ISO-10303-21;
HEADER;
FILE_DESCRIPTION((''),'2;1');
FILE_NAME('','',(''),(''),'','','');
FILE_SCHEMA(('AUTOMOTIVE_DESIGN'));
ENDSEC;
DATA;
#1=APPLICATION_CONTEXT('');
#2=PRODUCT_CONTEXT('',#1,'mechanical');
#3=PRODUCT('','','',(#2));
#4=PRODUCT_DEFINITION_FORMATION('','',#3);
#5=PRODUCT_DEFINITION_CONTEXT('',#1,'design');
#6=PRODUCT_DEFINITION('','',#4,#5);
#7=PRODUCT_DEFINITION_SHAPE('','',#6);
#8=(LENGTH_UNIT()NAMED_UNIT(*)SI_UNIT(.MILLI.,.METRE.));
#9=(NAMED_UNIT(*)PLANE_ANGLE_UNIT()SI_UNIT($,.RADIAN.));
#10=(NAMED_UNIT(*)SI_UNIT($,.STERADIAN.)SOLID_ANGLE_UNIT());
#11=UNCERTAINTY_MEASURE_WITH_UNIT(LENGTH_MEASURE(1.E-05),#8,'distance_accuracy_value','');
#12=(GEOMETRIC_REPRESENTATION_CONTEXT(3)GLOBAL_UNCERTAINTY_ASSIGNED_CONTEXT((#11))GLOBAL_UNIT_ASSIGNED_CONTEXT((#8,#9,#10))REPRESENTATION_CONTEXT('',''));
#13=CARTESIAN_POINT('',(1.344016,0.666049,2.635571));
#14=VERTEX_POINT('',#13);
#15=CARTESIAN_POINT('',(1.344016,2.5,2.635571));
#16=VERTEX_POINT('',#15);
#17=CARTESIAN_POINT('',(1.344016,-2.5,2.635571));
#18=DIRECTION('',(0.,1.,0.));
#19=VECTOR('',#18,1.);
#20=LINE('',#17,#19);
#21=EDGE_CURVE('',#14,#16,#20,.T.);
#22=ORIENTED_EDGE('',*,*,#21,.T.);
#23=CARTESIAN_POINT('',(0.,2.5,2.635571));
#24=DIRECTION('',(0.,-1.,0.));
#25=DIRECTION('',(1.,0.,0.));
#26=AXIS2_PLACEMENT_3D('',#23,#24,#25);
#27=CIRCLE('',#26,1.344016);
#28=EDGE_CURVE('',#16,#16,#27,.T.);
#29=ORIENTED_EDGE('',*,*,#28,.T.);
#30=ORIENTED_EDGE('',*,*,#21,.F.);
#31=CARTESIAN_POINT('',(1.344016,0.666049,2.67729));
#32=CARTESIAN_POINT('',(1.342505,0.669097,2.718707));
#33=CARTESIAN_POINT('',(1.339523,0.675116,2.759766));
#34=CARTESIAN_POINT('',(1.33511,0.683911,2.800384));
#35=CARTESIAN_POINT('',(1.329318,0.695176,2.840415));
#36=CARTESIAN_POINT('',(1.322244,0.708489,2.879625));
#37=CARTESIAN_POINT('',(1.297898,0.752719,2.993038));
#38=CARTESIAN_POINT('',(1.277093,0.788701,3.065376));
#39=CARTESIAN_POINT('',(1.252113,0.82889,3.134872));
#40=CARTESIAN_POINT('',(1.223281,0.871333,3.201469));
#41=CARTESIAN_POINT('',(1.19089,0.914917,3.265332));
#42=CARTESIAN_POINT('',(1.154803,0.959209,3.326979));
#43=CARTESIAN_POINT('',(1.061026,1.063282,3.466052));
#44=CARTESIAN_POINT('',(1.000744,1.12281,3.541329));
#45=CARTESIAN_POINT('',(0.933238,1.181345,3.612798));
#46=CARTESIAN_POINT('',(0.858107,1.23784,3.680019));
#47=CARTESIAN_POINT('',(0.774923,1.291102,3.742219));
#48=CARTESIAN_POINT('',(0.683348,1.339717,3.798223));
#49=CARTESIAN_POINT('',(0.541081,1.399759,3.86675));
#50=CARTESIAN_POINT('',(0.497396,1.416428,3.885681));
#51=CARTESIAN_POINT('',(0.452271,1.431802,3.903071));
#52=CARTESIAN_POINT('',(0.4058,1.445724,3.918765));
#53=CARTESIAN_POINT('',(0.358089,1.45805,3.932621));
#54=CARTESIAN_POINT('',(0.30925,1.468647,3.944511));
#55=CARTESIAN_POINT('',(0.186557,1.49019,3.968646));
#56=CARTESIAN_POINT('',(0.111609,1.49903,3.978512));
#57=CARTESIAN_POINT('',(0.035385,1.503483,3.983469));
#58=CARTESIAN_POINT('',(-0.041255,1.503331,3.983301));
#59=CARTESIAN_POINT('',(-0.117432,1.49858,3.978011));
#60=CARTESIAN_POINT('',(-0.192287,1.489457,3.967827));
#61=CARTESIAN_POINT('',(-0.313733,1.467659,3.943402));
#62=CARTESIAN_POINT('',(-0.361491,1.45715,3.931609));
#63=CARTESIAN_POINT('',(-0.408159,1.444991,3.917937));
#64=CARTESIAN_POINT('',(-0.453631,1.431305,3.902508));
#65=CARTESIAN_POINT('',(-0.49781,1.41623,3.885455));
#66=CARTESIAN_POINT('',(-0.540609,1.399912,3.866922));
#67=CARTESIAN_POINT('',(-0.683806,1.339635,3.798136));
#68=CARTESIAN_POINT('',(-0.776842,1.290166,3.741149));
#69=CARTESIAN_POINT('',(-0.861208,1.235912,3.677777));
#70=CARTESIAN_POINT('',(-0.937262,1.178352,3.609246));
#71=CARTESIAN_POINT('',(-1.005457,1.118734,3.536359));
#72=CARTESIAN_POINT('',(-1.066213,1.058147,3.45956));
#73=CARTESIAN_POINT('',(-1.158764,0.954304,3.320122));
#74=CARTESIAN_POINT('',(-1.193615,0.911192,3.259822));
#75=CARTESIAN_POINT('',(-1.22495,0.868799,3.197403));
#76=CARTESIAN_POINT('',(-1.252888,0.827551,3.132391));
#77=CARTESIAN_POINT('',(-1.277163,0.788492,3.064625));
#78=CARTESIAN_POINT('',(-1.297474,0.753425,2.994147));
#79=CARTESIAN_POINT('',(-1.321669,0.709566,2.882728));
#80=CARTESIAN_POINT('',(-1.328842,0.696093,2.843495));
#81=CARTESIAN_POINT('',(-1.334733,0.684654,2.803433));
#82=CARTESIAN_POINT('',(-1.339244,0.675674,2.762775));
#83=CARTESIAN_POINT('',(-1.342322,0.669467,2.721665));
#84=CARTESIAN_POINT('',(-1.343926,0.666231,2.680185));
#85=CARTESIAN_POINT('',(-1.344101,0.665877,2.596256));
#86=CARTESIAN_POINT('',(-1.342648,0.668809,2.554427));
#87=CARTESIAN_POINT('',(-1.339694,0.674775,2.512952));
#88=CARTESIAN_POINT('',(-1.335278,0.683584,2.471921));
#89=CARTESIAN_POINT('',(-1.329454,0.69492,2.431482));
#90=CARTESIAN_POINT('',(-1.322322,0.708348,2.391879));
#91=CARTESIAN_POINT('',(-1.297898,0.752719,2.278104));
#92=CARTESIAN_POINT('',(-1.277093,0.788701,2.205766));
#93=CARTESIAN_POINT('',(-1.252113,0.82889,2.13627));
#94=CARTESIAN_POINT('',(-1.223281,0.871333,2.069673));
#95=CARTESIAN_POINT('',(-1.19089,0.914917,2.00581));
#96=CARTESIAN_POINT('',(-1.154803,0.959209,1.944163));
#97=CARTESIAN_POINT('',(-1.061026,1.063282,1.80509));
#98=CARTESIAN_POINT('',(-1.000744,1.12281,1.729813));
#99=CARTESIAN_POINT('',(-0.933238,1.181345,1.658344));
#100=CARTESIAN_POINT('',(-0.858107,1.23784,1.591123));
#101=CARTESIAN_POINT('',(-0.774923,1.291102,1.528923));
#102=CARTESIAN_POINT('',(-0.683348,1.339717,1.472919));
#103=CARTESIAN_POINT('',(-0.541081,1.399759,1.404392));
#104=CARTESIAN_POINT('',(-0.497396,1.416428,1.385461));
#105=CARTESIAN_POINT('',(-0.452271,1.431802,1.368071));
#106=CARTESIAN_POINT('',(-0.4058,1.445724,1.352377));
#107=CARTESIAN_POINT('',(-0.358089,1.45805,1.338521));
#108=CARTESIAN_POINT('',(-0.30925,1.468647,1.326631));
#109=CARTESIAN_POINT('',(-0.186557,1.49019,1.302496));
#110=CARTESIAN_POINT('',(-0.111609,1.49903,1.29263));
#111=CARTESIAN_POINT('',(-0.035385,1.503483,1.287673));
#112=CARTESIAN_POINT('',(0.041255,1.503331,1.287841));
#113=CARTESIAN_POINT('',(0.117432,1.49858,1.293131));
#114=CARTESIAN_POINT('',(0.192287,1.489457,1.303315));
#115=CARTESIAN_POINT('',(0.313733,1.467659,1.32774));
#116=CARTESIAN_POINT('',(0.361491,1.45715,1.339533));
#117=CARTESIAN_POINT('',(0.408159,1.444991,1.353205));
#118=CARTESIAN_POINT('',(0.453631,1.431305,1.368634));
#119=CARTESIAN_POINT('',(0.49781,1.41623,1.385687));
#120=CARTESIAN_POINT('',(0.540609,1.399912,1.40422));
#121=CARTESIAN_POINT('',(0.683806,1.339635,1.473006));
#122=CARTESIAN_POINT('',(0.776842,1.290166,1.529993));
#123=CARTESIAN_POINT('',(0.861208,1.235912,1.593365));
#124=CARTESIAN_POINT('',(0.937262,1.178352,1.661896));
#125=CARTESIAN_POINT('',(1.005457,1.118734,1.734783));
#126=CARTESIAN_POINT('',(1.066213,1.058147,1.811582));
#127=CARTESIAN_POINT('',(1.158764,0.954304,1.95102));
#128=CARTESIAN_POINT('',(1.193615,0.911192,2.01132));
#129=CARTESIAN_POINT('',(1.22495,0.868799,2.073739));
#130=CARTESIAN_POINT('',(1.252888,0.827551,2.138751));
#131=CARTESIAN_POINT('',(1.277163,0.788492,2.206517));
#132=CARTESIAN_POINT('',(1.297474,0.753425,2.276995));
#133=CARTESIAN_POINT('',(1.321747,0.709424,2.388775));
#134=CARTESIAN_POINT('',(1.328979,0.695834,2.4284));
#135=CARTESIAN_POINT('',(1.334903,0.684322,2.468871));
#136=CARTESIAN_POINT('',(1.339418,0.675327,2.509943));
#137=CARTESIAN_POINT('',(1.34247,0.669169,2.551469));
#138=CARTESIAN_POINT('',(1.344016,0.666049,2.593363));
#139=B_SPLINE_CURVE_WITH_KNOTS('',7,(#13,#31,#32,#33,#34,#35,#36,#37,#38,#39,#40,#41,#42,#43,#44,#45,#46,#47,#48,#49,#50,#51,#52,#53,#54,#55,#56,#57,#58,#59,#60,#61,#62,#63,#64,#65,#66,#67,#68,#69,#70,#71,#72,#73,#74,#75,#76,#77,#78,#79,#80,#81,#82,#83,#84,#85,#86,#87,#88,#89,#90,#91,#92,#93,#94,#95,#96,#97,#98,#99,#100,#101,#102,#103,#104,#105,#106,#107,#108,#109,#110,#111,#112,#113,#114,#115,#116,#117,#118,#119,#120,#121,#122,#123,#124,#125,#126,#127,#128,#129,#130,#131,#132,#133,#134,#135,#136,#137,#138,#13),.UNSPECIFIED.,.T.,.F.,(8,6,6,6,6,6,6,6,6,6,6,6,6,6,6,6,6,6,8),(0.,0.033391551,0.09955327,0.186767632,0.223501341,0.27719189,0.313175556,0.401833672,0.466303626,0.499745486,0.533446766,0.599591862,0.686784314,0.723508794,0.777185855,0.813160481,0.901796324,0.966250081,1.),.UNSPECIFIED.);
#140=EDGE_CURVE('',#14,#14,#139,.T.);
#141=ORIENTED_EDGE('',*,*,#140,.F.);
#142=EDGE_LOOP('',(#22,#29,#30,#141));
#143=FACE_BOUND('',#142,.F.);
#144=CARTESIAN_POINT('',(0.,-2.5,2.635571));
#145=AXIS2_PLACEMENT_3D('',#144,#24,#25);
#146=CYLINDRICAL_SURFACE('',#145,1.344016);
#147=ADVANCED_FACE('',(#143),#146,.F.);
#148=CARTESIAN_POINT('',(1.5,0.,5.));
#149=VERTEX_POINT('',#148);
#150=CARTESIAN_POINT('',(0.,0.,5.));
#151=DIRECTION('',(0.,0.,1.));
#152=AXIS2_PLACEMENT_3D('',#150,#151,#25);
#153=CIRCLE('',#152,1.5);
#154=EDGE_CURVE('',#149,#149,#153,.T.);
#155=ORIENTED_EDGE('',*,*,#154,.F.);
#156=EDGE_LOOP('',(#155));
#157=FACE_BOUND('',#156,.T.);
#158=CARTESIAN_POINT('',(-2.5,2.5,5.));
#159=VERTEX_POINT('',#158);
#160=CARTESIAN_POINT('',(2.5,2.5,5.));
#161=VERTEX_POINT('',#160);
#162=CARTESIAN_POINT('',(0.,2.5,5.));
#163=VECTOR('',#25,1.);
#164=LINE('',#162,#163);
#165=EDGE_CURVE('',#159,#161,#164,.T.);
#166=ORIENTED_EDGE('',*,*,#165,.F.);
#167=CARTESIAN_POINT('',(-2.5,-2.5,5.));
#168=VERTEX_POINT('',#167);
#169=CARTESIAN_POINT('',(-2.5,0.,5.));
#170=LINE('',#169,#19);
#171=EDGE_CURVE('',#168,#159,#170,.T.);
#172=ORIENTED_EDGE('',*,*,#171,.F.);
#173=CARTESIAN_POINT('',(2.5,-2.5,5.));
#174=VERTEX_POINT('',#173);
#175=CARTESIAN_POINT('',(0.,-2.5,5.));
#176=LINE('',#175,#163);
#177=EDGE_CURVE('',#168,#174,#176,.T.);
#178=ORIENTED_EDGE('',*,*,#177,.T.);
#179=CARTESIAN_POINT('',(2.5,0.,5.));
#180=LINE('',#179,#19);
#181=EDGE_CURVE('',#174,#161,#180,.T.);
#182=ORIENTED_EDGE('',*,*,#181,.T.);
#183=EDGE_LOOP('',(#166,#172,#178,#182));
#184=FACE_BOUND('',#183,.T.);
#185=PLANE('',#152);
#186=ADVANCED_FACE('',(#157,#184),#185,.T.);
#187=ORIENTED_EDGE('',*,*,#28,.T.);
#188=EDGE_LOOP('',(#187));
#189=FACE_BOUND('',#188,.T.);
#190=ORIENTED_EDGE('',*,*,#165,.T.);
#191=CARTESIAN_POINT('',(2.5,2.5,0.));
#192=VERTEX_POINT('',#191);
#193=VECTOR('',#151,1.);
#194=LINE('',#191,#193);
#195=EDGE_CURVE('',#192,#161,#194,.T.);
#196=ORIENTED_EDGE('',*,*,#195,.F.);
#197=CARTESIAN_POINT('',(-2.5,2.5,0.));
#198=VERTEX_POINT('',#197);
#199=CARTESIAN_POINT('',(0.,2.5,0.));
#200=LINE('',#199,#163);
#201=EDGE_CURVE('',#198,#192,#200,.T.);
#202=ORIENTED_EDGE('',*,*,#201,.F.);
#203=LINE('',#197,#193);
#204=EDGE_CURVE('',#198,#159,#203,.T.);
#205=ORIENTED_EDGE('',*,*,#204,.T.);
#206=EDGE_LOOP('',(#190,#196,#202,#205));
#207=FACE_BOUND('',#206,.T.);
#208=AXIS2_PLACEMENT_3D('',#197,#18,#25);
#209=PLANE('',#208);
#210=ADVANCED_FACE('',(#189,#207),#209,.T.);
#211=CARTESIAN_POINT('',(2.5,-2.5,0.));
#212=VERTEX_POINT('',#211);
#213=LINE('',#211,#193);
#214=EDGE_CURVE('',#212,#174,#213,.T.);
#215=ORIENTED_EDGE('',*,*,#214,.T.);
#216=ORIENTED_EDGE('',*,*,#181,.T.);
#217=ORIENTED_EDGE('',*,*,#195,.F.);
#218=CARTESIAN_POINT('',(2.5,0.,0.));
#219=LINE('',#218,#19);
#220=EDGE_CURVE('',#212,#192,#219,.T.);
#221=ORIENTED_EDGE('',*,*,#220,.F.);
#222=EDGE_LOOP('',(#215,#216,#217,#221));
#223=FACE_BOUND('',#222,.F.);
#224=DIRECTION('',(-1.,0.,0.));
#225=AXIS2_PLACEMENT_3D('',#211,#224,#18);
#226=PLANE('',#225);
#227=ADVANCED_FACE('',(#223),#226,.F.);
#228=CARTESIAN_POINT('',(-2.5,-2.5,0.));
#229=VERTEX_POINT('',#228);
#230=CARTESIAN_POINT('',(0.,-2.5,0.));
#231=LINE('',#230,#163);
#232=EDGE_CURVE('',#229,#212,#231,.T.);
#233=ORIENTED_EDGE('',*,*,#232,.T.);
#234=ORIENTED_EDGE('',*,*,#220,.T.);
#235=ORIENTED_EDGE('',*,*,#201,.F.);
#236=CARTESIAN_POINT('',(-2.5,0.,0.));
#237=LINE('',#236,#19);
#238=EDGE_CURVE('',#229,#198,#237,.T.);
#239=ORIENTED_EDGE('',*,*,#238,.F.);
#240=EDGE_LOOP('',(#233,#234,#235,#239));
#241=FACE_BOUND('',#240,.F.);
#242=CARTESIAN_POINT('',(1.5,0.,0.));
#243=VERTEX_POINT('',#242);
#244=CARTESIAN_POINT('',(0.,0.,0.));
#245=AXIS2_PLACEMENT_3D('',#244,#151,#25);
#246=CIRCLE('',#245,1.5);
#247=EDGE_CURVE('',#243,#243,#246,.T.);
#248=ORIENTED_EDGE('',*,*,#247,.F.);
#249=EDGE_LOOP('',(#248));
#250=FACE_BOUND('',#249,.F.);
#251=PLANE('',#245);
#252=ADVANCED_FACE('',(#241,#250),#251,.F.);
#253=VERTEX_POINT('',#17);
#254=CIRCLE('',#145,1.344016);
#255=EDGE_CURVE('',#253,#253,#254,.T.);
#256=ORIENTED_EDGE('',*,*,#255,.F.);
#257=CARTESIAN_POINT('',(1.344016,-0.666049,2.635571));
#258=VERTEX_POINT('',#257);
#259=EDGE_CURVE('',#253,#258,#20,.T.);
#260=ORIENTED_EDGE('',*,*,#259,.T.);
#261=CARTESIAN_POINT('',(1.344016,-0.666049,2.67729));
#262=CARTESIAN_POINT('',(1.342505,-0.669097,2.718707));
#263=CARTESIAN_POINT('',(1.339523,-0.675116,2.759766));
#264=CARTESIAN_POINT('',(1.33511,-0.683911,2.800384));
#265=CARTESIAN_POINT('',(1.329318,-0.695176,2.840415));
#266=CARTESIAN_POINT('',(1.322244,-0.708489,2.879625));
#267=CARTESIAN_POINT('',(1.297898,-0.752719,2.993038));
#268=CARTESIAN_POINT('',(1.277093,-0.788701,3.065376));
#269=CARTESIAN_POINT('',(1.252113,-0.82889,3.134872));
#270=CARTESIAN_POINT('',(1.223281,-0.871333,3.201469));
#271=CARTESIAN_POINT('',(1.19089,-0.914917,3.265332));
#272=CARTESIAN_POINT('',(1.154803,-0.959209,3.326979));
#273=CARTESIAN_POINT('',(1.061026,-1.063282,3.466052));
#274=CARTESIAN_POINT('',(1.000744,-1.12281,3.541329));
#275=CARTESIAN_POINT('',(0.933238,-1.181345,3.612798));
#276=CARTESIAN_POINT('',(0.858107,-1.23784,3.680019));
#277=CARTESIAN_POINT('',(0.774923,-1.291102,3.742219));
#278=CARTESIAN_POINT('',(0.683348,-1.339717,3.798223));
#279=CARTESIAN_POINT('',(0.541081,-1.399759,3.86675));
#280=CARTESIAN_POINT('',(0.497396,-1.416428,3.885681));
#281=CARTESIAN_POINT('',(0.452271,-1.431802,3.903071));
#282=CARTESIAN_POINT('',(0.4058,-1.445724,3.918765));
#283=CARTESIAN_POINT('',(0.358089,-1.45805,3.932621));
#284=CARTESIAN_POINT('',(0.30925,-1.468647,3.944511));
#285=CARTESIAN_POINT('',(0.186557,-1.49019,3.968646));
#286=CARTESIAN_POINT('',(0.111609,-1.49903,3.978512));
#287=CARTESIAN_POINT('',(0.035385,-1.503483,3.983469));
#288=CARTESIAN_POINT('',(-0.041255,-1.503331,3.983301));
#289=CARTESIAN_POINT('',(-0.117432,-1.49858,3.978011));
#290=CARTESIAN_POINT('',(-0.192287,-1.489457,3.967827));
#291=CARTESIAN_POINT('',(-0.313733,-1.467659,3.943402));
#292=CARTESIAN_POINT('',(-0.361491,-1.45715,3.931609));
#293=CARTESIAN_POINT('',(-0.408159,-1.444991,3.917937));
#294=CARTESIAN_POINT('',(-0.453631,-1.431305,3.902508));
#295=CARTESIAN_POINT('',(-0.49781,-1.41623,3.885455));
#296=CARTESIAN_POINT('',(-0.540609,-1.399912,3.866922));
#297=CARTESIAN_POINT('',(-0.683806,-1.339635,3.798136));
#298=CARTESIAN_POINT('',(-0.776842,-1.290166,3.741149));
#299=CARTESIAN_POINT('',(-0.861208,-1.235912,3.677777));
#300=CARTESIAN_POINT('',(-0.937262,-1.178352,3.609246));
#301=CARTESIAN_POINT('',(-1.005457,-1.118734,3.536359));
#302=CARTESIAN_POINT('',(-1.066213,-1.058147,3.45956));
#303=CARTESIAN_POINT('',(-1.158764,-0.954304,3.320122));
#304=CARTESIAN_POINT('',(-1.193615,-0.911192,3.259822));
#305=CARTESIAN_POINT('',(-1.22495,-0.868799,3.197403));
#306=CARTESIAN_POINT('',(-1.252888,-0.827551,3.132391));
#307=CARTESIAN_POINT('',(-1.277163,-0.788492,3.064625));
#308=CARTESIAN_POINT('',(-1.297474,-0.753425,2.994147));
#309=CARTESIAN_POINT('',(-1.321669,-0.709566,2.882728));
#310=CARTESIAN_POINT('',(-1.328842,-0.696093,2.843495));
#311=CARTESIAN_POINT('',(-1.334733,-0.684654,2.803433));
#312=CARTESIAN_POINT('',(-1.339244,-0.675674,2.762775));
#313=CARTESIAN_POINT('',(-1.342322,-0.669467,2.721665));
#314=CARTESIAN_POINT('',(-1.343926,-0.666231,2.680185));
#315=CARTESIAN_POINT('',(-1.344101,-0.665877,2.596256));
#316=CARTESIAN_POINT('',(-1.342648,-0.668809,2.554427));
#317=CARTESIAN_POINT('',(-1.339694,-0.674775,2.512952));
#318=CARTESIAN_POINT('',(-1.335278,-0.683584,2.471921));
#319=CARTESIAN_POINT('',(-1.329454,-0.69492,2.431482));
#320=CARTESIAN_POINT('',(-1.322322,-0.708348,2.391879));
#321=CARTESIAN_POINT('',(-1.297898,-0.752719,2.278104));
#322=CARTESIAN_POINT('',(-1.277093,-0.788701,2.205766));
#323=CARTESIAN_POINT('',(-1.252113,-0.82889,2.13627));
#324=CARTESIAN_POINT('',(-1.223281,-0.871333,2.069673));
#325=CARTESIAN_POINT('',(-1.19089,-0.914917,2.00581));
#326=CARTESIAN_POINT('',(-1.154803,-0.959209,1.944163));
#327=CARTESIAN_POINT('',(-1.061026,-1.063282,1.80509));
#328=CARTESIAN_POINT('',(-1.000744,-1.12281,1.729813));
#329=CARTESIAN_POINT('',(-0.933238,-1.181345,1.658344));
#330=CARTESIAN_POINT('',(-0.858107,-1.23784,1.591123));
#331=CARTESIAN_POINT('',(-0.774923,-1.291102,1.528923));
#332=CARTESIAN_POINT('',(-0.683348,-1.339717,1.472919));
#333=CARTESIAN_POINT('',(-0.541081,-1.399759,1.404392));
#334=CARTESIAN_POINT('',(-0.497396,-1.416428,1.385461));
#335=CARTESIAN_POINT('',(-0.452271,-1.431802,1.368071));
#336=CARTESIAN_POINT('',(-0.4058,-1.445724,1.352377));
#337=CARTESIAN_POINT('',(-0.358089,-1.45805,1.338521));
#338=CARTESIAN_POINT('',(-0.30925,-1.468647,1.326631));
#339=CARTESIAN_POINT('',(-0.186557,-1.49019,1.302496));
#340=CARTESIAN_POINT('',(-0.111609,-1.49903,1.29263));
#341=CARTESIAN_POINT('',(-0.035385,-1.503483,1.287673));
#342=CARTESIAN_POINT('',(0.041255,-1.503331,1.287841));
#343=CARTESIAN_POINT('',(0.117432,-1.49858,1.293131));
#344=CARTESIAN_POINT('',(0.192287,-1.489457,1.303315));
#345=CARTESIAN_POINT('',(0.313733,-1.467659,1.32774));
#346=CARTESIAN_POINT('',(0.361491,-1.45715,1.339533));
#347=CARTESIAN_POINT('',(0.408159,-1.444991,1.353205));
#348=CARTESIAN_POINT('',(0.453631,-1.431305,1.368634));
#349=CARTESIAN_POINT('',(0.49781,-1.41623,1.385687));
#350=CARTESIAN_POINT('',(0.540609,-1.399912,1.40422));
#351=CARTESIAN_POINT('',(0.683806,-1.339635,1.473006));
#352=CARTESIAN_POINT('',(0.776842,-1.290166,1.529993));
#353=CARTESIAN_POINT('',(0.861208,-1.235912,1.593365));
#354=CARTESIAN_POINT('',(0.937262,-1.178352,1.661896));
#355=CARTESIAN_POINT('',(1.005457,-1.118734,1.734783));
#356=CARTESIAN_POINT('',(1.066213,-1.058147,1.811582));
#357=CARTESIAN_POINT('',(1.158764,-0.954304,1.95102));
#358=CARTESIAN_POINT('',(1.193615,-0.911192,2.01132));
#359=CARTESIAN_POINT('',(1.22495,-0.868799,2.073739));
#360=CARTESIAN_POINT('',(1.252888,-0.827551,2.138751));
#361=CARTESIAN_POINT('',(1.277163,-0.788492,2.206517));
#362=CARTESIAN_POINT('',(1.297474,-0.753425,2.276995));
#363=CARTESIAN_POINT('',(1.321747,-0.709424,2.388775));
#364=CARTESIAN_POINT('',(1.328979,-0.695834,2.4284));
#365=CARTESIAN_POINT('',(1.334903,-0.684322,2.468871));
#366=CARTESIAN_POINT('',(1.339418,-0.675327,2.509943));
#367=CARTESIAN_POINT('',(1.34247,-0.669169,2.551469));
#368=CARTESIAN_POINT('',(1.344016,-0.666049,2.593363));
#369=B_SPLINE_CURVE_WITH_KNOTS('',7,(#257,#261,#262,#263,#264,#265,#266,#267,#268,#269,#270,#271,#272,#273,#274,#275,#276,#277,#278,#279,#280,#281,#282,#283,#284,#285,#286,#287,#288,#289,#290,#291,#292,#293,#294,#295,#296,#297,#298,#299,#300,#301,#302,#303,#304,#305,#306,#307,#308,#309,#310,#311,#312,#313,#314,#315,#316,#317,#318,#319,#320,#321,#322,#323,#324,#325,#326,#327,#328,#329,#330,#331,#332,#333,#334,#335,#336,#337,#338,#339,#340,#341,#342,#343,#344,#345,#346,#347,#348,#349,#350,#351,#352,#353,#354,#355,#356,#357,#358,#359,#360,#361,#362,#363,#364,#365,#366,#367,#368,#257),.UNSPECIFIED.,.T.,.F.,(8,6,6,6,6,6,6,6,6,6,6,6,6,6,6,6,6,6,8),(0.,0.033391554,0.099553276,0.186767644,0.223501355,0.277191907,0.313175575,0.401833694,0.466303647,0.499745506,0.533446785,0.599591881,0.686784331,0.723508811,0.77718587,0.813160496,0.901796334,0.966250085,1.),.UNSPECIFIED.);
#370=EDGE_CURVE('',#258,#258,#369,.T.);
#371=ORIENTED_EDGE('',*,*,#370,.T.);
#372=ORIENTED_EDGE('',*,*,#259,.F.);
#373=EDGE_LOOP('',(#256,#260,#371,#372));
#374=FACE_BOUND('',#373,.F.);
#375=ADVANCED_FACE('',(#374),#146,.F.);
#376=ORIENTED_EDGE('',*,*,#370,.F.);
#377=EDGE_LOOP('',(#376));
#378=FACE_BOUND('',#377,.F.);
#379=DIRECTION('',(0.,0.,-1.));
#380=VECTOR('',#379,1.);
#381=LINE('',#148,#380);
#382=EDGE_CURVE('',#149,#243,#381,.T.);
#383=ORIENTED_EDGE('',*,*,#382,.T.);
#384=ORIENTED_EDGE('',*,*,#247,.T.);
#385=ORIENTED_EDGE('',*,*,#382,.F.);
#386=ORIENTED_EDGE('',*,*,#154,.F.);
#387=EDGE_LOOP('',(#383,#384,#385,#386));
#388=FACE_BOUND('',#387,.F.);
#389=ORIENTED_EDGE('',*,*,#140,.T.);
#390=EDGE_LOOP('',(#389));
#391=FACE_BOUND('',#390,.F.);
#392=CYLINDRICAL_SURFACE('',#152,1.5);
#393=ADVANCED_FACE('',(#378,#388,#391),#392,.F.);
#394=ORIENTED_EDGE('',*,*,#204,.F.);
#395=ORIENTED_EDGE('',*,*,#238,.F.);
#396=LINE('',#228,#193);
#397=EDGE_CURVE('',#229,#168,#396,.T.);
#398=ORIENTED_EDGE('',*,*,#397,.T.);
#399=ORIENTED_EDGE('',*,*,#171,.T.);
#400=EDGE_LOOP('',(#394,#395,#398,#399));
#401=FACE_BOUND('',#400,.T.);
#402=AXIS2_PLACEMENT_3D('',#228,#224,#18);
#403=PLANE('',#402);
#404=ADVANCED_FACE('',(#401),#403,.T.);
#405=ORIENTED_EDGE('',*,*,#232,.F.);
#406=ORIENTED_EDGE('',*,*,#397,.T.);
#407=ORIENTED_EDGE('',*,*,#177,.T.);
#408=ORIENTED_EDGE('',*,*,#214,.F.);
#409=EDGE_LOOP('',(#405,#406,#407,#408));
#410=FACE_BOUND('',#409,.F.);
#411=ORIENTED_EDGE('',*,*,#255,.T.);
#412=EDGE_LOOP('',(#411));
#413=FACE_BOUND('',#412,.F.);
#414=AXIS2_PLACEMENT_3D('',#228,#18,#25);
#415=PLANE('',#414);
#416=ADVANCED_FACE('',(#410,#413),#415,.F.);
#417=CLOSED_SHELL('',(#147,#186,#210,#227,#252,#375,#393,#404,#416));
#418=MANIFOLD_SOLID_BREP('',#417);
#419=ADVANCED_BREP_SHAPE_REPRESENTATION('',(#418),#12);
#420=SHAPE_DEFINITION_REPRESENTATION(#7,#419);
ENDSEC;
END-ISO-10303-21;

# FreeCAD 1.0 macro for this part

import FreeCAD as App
import Part
import Sketcher

V = App.Vector
Q = App.Units.Quantity


def add_polygon(sketch, points):
    """Adds a closed chain of lines whose ends are joined by coincident constraints."""
    first, n = sketch.GeometryCount, len(points)
    for a, b in zip(points, points[1:] + points[:1]):
        sketch.addGeometry(Part.LineSegment(App.Vector(*a, 0), App.Vector(*b, 0)), False)
    for i in range(n):
        sketch.addConstraint(Sketcher.Constraint("Coincident", first + i, 2, first + (i + 1) % n, 1))

doc = App.newDocument("Part")
body = doc.addObject("PartDesign::Body", "Body")

# Sketch on XY plane
sketch1 = body.newObject("Sketcher::SketchObject", "Sketch")
sketch1.AttachmentSupport = (doc.getObject("XY_Plane"), [""])
sketch1.MapMode = "FlatFace"
add_polygon(sketch1, [(-2.5, 2.5), (-2.5, -2.5), (2.5, -2.5), (2.5, 2.5)])  # lines 0-3
sketch1.addConstraint([
    Sketcher.Constraint("Vertical", 0),
    Sketcher.Constraint("Horizontal", 1),
    Sketcher.Constraint("Vertical", 2),
    Sketcher.Constraint("Horizontal", 3),
    Sketcher.Constraint("Symmetric", 0, 2, 2, 2, -1, 1),
    Sketcher.Constraint("Equal", 3, 0),
    Sketcher.Constraint("DistanceX", 1, 1, 1, 2, Q("5 mm")),
])
pad1 = body.newObject("PartDesign::Pad", "Pad")
pad1.Profile = sketch1
pad1.Length = 5

# Sketch on XY plane
sketch2 = body.newObject("Sketcher::SketchObject", "Sketch001")
sketch2.AttachmentSupport = (doc.getObject("XY_Plane"), [""])
sketch2.MapMode = "FlatFace"
sketch2.AttachmentOffset = App.Placement(V(0, 0, 5), App.Rotation())
sketch2.addGeometry(Part.Circle(V(0, 0, 0), V(0, 0, 1), 1.5), False)
sketch2.addConstraint([
    Sketcher.Constraint("Coincident", 0, 3, -1, 1),
    Sketcher.Constraint("Diameter", 0, Q("3 mm")),
])
pocket1 = body.newObject("PartDesign::Pocket", "Pocket")
pocket1.Profile = sketch2
pocket1.Length = 8.0264

# Sketch on XZ plane
sketch3 = body.newObject("Sketcher::SketchObject", "Sketch002")
sketch3.AttachmentSupport = (doc.getObject("XZ_Plane"), [""])
sketch3.MapMode = "FlatFace"
sketch3.AttachmentOffset = App.Placement(V(0, 0, 2.5), App.Rotation())
sketch3.addGeometry(Part.Circle(V(0, 2.635571, 0), V(0, 0, 1), 1.344016), False)
sketch3.addConstraint([
    Sketcher.Constraint("PointOnObject", 0, 3, -2),
    Sketcher.Constraint("Diameter", 0, Q("2.688032 mm")),
    Sketcher.Constraint("DistanceY", -1, 1, 0, 3, Q("2.635571 mm")),
])
pocket2 = body.newObject("PartDesign::Pocket", "Pocket001")
pocket2.Profile = sketch3
pocket2.Length = 20

doc.recompute()
